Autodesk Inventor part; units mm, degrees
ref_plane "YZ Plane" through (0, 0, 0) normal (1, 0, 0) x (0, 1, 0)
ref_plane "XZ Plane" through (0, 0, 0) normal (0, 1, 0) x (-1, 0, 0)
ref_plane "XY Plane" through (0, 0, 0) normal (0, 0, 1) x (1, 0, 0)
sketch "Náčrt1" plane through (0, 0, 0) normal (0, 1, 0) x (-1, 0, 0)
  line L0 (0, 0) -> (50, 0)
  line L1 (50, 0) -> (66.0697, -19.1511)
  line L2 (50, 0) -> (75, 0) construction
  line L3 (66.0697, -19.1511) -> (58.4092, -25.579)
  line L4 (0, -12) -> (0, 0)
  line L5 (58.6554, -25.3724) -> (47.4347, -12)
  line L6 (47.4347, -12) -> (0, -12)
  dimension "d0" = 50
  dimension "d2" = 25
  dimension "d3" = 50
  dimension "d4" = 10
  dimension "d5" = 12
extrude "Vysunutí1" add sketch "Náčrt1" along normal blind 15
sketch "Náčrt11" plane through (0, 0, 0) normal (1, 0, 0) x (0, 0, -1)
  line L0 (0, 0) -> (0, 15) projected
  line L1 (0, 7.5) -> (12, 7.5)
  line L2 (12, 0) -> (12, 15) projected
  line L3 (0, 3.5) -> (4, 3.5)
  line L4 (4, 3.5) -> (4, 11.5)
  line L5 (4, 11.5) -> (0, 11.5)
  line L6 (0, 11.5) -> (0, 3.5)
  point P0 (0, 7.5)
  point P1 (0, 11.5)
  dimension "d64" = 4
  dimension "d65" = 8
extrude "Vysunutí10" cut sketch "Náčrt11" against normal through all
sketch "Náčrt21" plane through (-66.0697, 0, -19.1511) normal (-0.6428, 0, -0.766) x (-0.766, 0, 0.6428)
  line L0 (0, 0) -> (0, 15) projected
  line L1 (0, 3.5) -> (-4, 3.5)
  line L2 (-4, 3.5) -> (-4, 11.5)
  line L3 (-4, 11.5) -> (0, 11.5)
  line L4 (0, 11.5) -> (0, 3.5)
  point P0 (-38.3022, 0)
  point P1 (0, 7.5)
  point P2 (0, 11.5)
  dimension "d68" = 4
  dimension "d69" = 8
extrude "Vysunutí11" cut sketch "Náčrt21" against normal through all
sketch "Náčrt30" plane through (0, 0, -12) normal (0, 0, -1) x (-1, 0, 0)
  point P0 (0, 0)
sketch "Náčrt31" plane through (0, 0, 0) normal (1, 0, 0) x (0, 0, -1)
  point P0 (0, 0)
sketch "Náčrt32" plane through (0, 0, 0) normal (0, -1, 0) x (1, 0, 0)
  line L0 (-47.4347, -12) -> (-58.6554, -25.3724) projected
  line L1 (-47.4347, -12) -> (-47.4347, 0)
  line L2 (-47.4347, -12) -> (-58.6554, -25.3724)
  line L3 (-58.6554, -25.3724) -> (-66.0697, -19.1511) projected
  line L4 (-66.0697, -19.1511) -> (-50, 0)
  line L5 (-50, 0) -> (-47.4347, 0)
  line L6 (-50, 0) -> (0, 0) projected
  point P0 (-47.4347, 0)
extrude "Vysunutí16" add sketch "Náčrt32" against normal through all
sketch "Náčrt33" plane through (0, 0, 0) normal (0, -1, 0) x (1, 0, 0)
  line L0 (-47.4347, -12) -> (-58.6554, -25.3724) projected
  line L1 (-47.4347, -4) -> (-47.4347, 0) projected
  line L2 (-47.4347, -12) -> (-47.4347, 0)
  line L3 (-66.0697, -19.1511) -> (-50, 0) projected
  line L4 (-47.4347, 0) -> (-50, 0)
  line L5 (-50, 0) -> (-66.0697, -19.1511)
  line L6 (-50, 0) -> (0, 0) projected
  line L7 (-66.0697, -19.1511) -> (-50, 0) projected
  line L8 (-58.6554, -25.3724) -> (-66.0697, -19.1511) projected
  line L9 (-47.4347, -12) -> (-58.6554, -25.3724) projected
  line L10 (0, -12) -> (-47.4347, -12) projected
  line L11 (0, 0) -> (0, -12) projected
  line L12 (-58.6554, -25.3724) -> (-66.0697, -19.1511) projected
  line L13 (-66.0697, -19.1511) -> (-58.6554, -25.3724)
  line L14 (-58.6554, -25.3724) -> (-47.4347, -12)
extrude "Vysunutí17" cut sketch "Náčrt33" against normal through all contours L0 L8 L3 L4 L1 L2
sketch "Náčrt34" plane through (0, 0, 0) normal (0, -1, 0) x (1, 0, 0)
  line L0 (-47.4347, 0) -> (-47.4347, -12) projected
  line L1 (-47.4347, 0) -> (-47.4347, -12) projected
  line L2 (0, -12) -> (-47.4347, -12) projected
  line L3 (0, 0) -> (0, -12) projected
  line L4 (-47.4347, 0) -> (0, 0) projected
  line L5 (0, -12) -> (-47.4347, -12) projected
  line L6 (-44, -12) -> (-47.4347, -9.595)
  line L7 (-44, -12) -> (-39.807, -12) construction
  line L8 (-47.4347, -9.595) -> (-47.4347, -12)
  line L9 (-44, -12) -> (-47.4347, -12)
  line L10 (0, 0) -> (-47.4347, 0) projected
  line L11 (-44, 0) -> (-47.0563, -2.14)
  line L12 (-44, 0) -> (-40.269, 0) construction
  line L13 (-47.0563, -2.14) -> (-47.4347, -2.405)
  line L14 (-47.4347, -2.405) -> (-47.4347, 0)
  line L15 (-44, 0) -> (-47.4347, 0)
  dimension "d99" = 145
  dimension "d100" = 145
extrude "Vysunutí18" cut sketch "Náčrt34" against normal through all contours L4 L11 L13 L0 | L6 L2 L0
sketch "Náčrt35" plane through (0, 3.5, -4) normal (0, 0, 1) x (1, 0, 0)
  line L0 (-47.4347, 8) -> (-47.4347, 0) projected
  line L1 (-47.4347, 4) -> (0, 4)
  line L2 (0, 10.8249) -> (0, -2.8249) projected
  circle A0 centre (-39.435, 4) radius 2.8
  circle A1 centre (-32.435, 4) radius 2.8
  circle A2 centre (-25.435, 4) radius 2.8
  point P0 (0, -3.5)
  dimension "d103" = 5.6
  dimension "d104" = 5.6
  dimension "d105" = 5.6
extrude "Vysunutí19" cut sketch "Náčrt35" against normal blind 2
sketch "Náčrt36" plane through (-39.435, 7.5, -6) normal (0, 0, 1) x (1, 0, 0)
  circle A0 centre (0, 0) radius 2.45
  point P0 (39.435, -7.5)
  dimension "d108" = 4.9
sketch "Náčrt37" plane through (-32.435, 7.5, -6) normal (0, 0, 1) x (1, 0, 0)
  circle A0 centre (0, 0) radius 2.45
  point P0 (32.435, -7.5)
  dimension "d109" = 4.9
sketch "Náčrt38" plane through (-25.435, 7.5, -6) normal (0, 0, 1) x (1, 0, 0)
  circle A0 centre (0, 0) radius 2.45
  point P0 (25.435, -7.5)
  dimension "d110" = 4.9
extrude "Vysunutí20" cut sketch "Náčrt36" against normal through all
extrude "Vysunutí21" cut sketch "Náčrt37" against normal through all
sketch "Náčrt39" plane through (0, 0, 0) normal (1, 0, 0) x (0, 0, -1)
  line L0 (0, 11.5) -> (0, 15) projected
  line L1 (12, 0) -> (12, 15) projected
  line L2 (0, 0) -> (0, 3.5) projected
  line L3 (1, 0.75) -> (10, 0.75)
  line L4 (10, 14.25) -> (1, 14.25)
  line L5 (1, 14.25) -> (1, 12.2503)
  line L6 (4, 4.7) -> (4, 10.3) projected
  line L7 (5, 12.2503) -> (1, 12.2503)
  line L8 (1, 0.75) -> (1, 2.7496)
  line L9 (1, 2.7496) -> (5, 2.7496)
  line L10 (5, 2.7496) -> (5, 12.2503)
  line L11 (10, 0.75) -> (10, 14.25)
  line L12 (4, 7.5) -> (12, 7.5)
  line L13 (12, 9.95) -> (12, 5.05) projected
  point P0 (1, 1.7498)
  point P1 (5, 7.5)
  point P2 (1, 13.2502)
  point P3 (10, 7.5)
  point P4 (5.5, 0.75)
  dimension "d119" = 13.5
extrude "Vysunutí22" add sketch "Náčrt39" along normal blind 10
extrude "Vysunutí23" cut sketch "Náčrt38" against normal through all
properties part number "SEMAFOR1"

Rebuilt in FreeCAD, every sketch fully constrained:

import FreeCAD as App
import Part
import Sketcher
from FreeCAD import Vector
Q = App.Units.Quantity

doc = App.newDocument("Part")
body = doc.addObject("PartDesign::Body", "Body")

# Sketch on XZ plane
sketch1 = doc.addObject("Sketcher::SketchObject", "Sketch")
body.addObject(sketch1)
sketch1.AttachmentSupport = (doc.XZ_Plane, [""])
sketch1.MapMode = "FlatFace"
sketch1.addGeometry([
    Part.LineSegment(Vector(-50, 0, 0), Vector(0, 0, 0)),  # 0
    Part.LineSegment(Vector(0, 0, 0), Vector(0, -12, 0)),  # 1
    Part.LineSegment(Vector(0, -12, 0), Vector(-47, -12, 0)),  # 2
    Part.LineSegment(Vector(-47, -12, 0), Vector(-59, -25, 0)),  # 3
    Part.LineSegment(Vector(-59, -25, 0), Vector(-66, -19, 0)),  # 4
    Part.LineSegment(Vector(-66, -19, 0), Vector(-50, 0, 0)),  # 5
], False)
sketch1.addConstraint([
    Sketcher.Constraint("Coincident", 0, 2, 1, 1),
    Sketcher.Constraint("Coincident", 1, 2, 2, 1),
    Sketcher.Constraint("Coincident", 2, 2, 3, 1),
    Sketcher.Constraint("Coincident", 3, 2, 4, 1),
    Sketcher.Constraint("Coincident", 4, 2, 5, 1),
    Sketcher.Constraint("Coincident", 5, 2, 0, 1),
    Sketcher.Constraint("Horizontal", 0),
    Sketcher.Constraint("Vertical", 1),
    Sketcher.Constraint("Horizontal", 2),
    Sketcher.Constraint("Coincident", 0, 2, -1, 1),
    Sketcher.Constraint("Perpendicular", 3, 4),
    Sketcher.Constraint("Perpendicular", 4, 5),
    Sketcher.Constraint("DistanceX", 0, 1, 0, 2, Q("50 mm")),
    Sketcher.Constraint("DistanceY", 1, 2, 1, 1, Q("12 mm")),
    Sketcher.Constraint("Angle", 5, Q("50 deg")),
    Sketcher.Constraint("Distance", 5, Q("25 mm")),
    Sketcher.Constraint("DistanceX", 2, 2, 2, 1, Q("47.4347 mm")),
])
pad1 = doc.addObject("PartDesign::Pad", "Pad")
body.addObject(pad1)
pad1.Profile = sketch1
pad1.Length = 15
pad1.Reversed = True

# Sketch on YZ plane
sketch2 = doc.addObject("Sketcher::SketchObject", "Sketch001")
body.addObject(sketch2)
sketch2.AttachmentSupport = (doc.YZ_Plane, [""])
sketch2.MapMode = "FlatFace"
sketch2.addGeometry([
    Part.LineSegment(Vector(3.5, 0, 0), Vector(3.5, -4, 0)),
    Part.LineSegment(Vector(3.5, -4, 0), Vector(11.5, -4, 0)),
    Part.LineSegment(Vector(11.5, -4, 0), Vector(11.5, 0, 0)),
    Part.LineSegment(Vector(11.5, 0, 0), Vector(3.5, 0, 0)),
], False)
sketch2.addConstraint([
    Sketcher.Constraint("Coincident", 0, 2, 1, 1),
    Sketcher.Constraint("Coincident", 1, 2, 2, 1),
    Sketcher.Constraint("Coincident", 2, 2, 3, 1),
    Sketcher.Constraint("Coincident", 3, 2, 0, 1),
    Sketcher.Constraint("Vertical", 0),
    Sketcher.Constraint("Horizontal", 1),
    Sketcher.Constraint("Vertical", 2),
    Sketcher.Constraint("Horizontal", 3),
    Sketcher.Constraint("PointOnObject", 2, 2, -1),
    Sketcher.Constraint("DistanceX", 1, 1, 1, 2, Q("8 mm")),
    Sketcher.Constraint("DistanceY", 0, 2, 0, 1, Q("4 mm")),
    Sketcher.Constraint("DistanceX", -1, 1, 0, 2, Q("3.5 mm")),
])
pocket1 = doc.addObject("PartDesign::Pocket", "Pocket")
body.addObject(pocket1)
pocket1.Profile = sketch2
pocket1.Type = "ThroughAll"

# Sketch on an angled plane
sketch3 = doc.addObject("Sketcher::SketchObject", "Sketch002")
body.addObject(sketch3)
sketch3.Placement = App.Placement(Vector(-66.0697, 0, -19.1511), App.Rotation(Vector(-0.766044443, 0, 0.64278761), Vector(0, 1, 0), Vector(-0.64278761, 0, -0.766044443), "ZXY"))
sketch3.addGeometry([
    Part.LineSegment(Vector(-4, 3.5, 0), Vector(0, 3.5, 0)),
    Part.LineSegment(Vector(0, 3.5, 0), Vector(0, 11.5, 0)),
    Part.LineSegment(Vector(0, 11.5, 0), Vector(-4, 11.5, 0)),
    Part.LineSegment(Vector(-4, 11.5, 0), Vector(-4, 3.5, 0)),
], False)
sketch3.addConstraint([
    Sketcher.Constraint("Coincident", 0, 2, 1, 1),
    Sketcher.Constraint("Coincident", 1, 2, 2, 1),
    Sketcher.Constraint("Coincident", 2, 2, 3, 1),
    Sketcher.Constraint("Coincident", 3, 2, 0, 1),
    Sketcher.Constraint("Horizontal", 0),
    Sketcher.Constraint("Vertical", 1),
    Sketcher.Constraint("Horizontal", 2),
    Sketcher.Constraint("Vertical", 3),
    Sketcher.Constraint("PointOnObject", 0, 2, -2),
    Sketcher.Constraint("DistanceX", 0, 1, 0, 2, Q("4 mm")),
    Sketcher.Constraint("DistanceY", 1, 1, 1, 2, Q("8 mm")),
    Sketcher.Constraint("DistanceY", -1, 1, 0, 2, Q("3.5 mm")),
])
pocket2 = doc.addObject("PartDesign::Pocket", "Pocket001")
body.addObject(pocket2)
pocket2.Profile = sketch3
pocket2.Type = "ThroughAll"

# Sketch on XZ plane
sketch4 = doc.addObject("Sketcher::SketchObject", "Sketch003")
body.addObject(sketch4)
sketch4.AttachmentSupport = (doc.XZ_Plane, [""])
sketch4.MapMode = "FlatFace"
sketch4.addGeometry([
    Part.LineSegment(Vector(-58.7, -25.4, 0), Vector(-47.4, -12, 0)),  # 0
    Part.LineSegment(Vector(-47.4, -12, 0), Vector(-47.4, 0, 0)),  # 1
    Part.LineSegment(Vector(-47.4, 0, 0), Vector(-50, 0, 0)),  # 2
    Part.LineSegment(Vector(-50, 0, 0), Vector(-66.1, -19.2, 0)),  # 3
    Part.LineSegment(Vector(-66.1, -19.2, 0), Vector(-58.7, -25.4, 0)),  # 4
], False)
sketch4.addConstraint([
    Sketcher.Constraint("Coincident", 0, 2, 1, 1),
    Sketcher.Constraint("Coincident", 1, 2, 2, 1),
    Sketcher.Constraint("Coincident", 2, 2, 3, 1),
    Sketcher.Constraint("Coincident", 3, 2, 4, 1),
    Sketcher.Constraint("Coincident", 4, 2, 0, 1),
    Sketcher.Constraint("Vertical", 1),
    Sketcher.Constraint("Horizontal", 2),
    Sketcher.Constraint("PointOnObject", 1, 2, -1),
    Sketcher.Constraint("Parallel", 0, 3),
    Sketcher.Constraint("Perpendicular", 3, 4),
    Sketcher.Constraint("DistanceY", 1, 1, 1, 2, Q("12 mm")),
    Sketcher.Constraint("Angle", 0, Q("50.0002 deg")),
    Sketcher.Constraint("Distance", 3, Q("25 mm")),
    Sketcher.Constraint("DistanceX", 2, 2, -1, 1, Q("50 mm")),
    Sketcher.Constraint("DistanceX", 2, 2, 2, 1, Q("2.5653 mm")),
])
pad2 = doc.addObject("PartDesign::Pad", "Pad001")
body.addObject(pad2)
pad2.Profile = sketch4
pad2.Type = "UpToLast"
pad2.Reversed = True

# Sketch on XZ plane
sketch5 = doc.addObject("Sketcher::SketchObject", "Sketch004")
body.addObject(sketch5)
sketch5.AttachmentSupport = (doc.XZ_Plane, [""])
sketch5.MapMode = "FlatFace"
sketch5.addGeometry([
    Part.LineSegment(Vector(-58.7, -25.4, 0), Vector(-47.4, -12, 0)),  # 0
    Part.LineSegment(Vector(-47.4, -12, 0), Vector(-47.4, 0, 0)),  # 1
    Part.LineSegment(Vector(-47.4, 0, 0), Vector(-50, 0, 0)),  # 2
    Part.LineSegment(Vector(-50, 0, 0), Vector(-66.1, -19.2, 0)),  # 3
    Part.LineSegment(Vector(-66.1, -19.2, 0), Vector(-58.7, -25.4, 0)),  # 4
], False)
sketch5.addConstraint([
    Sketcher.Constraint("Coincident", 0, 2, 1, 1),
    Sketcher.Constraint("Coincident", 1, 2, 2, 1),
    Sketcher.Constraint("Coincident", 2, 2, 3, 1),
    Sketcher.Constraint("Coincident", 3, 2, 4, 1),
    Sketcher.Constraint("Coincident", 4, 2, 0, 1),
    Sketcher.Constraint("Vertical", 1),
    Sketcher.Constraint("Horizontal", 2),
    Sketcher.Constraint("PointOnObject", 1, 2, -1),
    Sketcher.Constraint("Parallel", 0, 3),
    Sketcher.Constraint("Perpendicular", 3, 4),
    Sketcher.Constraint("DistanceY", 1, 1, 1, 2, Q("12 mm")),
    Sketcher.Constraint("Angle", 0, Q("50.0002 deg")),
    Sketcher.Constraint("Distance", 3, Q("25 mm")),
    Sketcher.Constraint("DistanceX", 2, 2, -1, 1, Q("50 mm")),
    Sketcher.Constraint("DistanceX", 2, 2, 2, 1, Q("2.5653 mm")),
])
pocket3 = doc.addObject("PartDesign::Pocket", "Pocket002")
body.addObject(pocket3)
pocket3.Profile = sketch5
pocket3.Type = "ThroughAll"

# Sketch on XZ plane
sketch6 = doc.addObject("Sketcher::SketchObject", "Sketch005")
body.addObject(sketch6)
sketch6.AttachmentSupport = (doc.XZ_Plane, [""])
sketch6.MapMode = "FlatFace"
sketch6.addGeometry([
    Part.LineSegment(Vector(-44, 0, 0), Vector(-47.43, 0, 0)),  # 0
    Part.LineSegment(Vector(-47.43, 0, 0), Vector(-47.43, -2.4, 0)),  # 1
    Part.LineSegment(Vector(-47.43, -2.4, 0), Vector(-47.06, -2.14, 0)),  # 2
    Part.LineSegment(Vector(-47.06, -2.14, 0), Vector(-44, 0, 0)),  # 3
    Part.LineSegment(Vector(-44, -12, 0), Vector(-47.43, -9.6, 0)),  # 4
    Part.LineSegment(Vector(-47.43, -9.6, 0), Vector(-47.43, -12, 0)),  # 5
    Part.LineSegment(Vector(-47.43, -12, 0), Vector(-44, -12, 0)),  # 6
], False)
sketch6.addConstraint([
    Sketcher.Constraint("Coincident", 0, 2, 1, 1),
    Sketcher.Constraint("Coincident", 1, 2, 2, 1),
    Sketcher.Constraint("Coincident", 2, 2, 3, 1),
    Sketcher.Constraint("Coincident", 3, 2, 0, 1),
    Sketcher.Constraint("Coincident", 4, 2, 5, 1),
    Sketcher.Constraint("Coincident", 5, 2, 6, 1),
    Sketcher.Constraint("Coincident", 6, 2, 4, 1),
    Sketcher.Constraint("Horizontal", 0),
    Sketcher.Constraint("Vertical", 1),
    Sketcher.Constraint("Vertical", 5),
    Sketcher.Constraint("Horizontal", 6),
    Sketcher.Constraint("PointOnObject", 0, 2, -1),
    Sketcher.Constraint("Parallel", 2, 3),
    Sketcher.Constraint("Vertical", 1, 2, 4, 2),
    Sketcher.Constraint("Vertical", 3, 2, 6, 2),
    Sketcher.Constraint("Equal", 1, 5),
    Sketcher.Constraint("Angle", 4, Q("145 deg")),
    Sketcher.Constraint("DistanceX", 3, 2, -1, 1, Q("44 mm")),
    Sketcher.Constraint("DistanceY", 5, 2, -1, 1, Q("12 mm")),
    Sketcher.Constraint("DistanceY", 1, 2, 1, 1, Q("2.405 mm")),
    Sketcher.Constraint("DistanceY", 2, 2, -1, 1, Q("2.14 mm")),
])
pocket4 = doc.addObject("PartDesign::Pocket", "Pocket003")
body.addObject(pocket4)
pocket4.Profile = sketch6
pocket4.Type = "ThroughAll"

# Sketch on XY plane
sketch7 = doc.addObject("Sketcher::SketchObject", "Sketch006")
body.addObject(sketch7)
sketch7.AttachmentSupport = (doc.XY_Plane, [""])
sketch7.MapMode = "FlatFace"
sketch7.AttachmentOffset = App.Placement(Vector(0, 0, -4), App.Rotation())
sketch7.addGeometry([
    Part.Circle(Vector(-39.4, 7.5, 0), Vector(0, 0, 1), 2.8),
    Part.Circle(Vector(-25.4, 7.5, 0), Vector(0, 0, 1), 2.8),
    Part.Circle(Vector(-32.4, 7.5, 0), Vector(0, 0, 1), 2.8),
], False)
sketch7.addConstraint([
    Sketcher.Constraint("Equal", 0, 1),
    Sketcher.Constraint("Equal", 1, 2),
    Sketcher.Constraint("Horizontal", 0, 3, 1, 3),
    Sketcher.Constraint("Horizontal", 1, 3, 2, 3),
    Sketcher.Constraint("Diameter", 0, Q("5.6 mm")),
    Sketcher.Constraint("DistanceX", 0, 3, 1, 3, Q("14 mm")),
    Sketcher.Constraint("DistanceX", 0, 3, 2, 3, Q("7 mm")),
    Sketcher.Constraint("DistanceY", -1, 1, 0, 3, Q("7.5 mm")),
    Sketcher.Constraint("DistanceX", 0, 3, -1, 1, Q("39.435 mm")),
])
pocket5 = doc.addObject("PartDesign::Pocket", "Pocket004")
body.addObject(pocket5)
pocket5.Profile = sketch7
pocket5.Length = 2

# Sketch on XY plane
sketch8 = doc.addObject("Sketcher::SketchObject", "Sketch007")
body.addObject(sketch8)
sketch8.AttachmentSupport = (doc.XY_Plane, [""])
sketch8.MapMode = "FlatFace"
sketch8.AttachmentOffset = App.Placement(Vector(0, 0, -6), App.Rotation())
sketch8.addGeometry(Part.Circle(Vector(-39.4, 7.5, 0), Vector(0, 0, 1), 2.5), False)
sketch8.addConstraint([
    Sketcher.Constraint("Diameter", 0, Q("4.9 mm")),
    Sketcher.Constraint("DistanceY", -1, 1, 0, 3, Q("7.5 mm")),
    Sketcher.Constraint("DistanceX", 0, 3, -1, 1, Q("39.435 mm")),
])
pocket6 = doc.addObject("PartDesign::Pocket", "Pocket005")
body.addObject(pocket6)
pocket6.Profile = sketch8
pocket6.Type = "ThroughAll"

# Sketch on XY plane
sketch9 = doc.addObject("Sketcher::SketchObject", "Sketch008")
body.addObject(sketch9)
sketch9.AttachmentSupport = (doc.XY_Plane, [""])
sketch9.MapMode = "FlatFace"
sketch9.AttachmentOffset = App.Placement(Vector(0, 0, -6), App.Rotation())
sketch9.addGeometry(Part.Circle(Vector(-32.4, 7.5, 0), Vector(0, 0, 1), 2.5), False)
sketch9.addConstraint([
    Sketcher.Constraint("Diameter", 0, Q("4.9 mm")),
    Sketcher.Constraint("DistanceY", -1, 1, 0, 3, Q("7.5 mm")),
    Sketcher.Constraint("DistanceX", 0, 3, -1, 1, Q("32.435 mm")),
])
pocket7 = doc.addObject("PartDesign::Pocket", "Pocket006")
body.addObject(pocket7)
pocket7.Profile = sketch9
pocket7.Type = "ThroughAll"

# Sketch on YZ plane
sketch10 = doc.addObject("Sketcher::SketchObject", "Sketch009")
body.addObject(sketch10)
sketch10.AttachmentSupport = (doc.YZ_Plane, [""])
sketch10.MapMode = "FlatFace"
sketch10.addGeometry([
    Part.LineSegment(Vector(2.7, -1, 0), Vector(0.8, -1, 0)),  # 0
    Part.LineSegment(Vector(0.8, -1, 0), Vector(0.8, -10, 0)),  # 1
    Part.LineSegment(Vector(0.8, -10, 0), Vector(14.2, -10, 0)),  # 2
    Part.LineSegment(Vector(14.2, -10, 0), Vector(14.2, -1, 0)),  # 3
    Part.LineSegment(Vector(14.2, -1, 0), Vector(12.3, -1, 0)),  # 4
    Part.LineSegment(Vector(12.3, -1, 0), Vector(12.3, -5, 0)),  # 5
    Part.LineSegment(Vector(12.3, -5, 0), Vector(2.7, -5, 0)),  # 6
    Part.LineSegment(Vector(2.7, -5, 0), Vector(2.7, -1, 0)),  # 7
], False)
sketch10.addConstraint([
    Sketcher.Constraint("Coincident", 0, 2, 1, 1),
    Sketcher.Constraint("Coincident", 1, 2, 2, 1),
    Sketcher.Constraint("Coincident", 2, 2, 3, 1),
    Sketcher.Constraint("Coincident", 3, 2, 4, 1),
    Sketcher.Constraint("Coincident", 4, 2, 5, 1),
    Sketcher.Constraint("Coincident", 5, 2, 6, 1),
    Sketcher.Constraint("Coincident", 6, 2, 7, 1),
    Sketcher.Constraint("Coincident", 7, 2, 0, 1),
    Sketcher.Constraint("Horizontal", 0),
    Sketcher.Constraint("Vertical", 1),
    Sketcher.Constraint("Horizontal", 2),
    Sketcher.Constraint("Vertical", 3),
    Sketcher.Constraint("Horizontal", 4),
    Sketcher.Constraint("Vertical", 5),
    Sketcher.Constraint("Horizontal", 6),
    Sketcher.Constraint("Vertical", 7),
    Sketcher.Constraint("Horizontal", 0, 2, 3, 2),
    Sketcher.Constraint("Equal", 0, 4),
    Sketcher.Constraint("DistanceX", 2, 1, 2, 2, Q("13.5 mm")),
    Sketcher.Constraint("DistanceY", 1, 2, 1, 1, Q("9 mm")),
    Sketcher.Constraint("DistanceY", 5, 2, 5, 1, Q("4 mm")),
    Sketcher.Constraint("DistanceY", 0, 2, -1, 1, Q("1 mm")),
    Sketcher.Constraint("DistanceX", -1, 1, 0, 2, Q("0.75 mm")),
    Sketcher.Constraint("DistanceX", 0, 2, 0, 1, Q("1.9996 mm")),
])
pad3 = doc.addObject("PartDesign::Pad", "Pad002")
body.addObject(pad3)
pad3.Profile = sketch10
pad3.Length = 10

# Sketch on XY plane
sketch11 = doc.addObject("Sketcher::SketchObject", "Sketch010")
body.addObject(sketch11)
sketch11.AttachmentSupport = (doc.XY_Plane, [""])
sketch11.MapMode = "FlatFace"
sketch11.AttachmentOffset = App.Placement(Vector(0, 0, -6), App.Rotation())
sketch11.addGeometry(Part.Circle(Vector(-25.4, 7.5, 0), Vector(0, 0, 1), 2.5), False)
sketch11.addConstraint([
    Sketcher.Constraint("Diameter", 0, Q("4.9 mm")),
    Sketcher.Constraint("DistanceY", -1, 1, 0, 3, Q("7.5 mm")),
    Sketcher.Constraint("DistanceX", 0, 3, -1, 1, Q("25.435 mm")),
])
pocket8 = doc.addObject("PartDesign::Pocket", "Pocket007")
body.addObject(pocket8)
pocket8.Profile = sketch11
pocket8.Type = "ThroughAll"

doc.recompute()
